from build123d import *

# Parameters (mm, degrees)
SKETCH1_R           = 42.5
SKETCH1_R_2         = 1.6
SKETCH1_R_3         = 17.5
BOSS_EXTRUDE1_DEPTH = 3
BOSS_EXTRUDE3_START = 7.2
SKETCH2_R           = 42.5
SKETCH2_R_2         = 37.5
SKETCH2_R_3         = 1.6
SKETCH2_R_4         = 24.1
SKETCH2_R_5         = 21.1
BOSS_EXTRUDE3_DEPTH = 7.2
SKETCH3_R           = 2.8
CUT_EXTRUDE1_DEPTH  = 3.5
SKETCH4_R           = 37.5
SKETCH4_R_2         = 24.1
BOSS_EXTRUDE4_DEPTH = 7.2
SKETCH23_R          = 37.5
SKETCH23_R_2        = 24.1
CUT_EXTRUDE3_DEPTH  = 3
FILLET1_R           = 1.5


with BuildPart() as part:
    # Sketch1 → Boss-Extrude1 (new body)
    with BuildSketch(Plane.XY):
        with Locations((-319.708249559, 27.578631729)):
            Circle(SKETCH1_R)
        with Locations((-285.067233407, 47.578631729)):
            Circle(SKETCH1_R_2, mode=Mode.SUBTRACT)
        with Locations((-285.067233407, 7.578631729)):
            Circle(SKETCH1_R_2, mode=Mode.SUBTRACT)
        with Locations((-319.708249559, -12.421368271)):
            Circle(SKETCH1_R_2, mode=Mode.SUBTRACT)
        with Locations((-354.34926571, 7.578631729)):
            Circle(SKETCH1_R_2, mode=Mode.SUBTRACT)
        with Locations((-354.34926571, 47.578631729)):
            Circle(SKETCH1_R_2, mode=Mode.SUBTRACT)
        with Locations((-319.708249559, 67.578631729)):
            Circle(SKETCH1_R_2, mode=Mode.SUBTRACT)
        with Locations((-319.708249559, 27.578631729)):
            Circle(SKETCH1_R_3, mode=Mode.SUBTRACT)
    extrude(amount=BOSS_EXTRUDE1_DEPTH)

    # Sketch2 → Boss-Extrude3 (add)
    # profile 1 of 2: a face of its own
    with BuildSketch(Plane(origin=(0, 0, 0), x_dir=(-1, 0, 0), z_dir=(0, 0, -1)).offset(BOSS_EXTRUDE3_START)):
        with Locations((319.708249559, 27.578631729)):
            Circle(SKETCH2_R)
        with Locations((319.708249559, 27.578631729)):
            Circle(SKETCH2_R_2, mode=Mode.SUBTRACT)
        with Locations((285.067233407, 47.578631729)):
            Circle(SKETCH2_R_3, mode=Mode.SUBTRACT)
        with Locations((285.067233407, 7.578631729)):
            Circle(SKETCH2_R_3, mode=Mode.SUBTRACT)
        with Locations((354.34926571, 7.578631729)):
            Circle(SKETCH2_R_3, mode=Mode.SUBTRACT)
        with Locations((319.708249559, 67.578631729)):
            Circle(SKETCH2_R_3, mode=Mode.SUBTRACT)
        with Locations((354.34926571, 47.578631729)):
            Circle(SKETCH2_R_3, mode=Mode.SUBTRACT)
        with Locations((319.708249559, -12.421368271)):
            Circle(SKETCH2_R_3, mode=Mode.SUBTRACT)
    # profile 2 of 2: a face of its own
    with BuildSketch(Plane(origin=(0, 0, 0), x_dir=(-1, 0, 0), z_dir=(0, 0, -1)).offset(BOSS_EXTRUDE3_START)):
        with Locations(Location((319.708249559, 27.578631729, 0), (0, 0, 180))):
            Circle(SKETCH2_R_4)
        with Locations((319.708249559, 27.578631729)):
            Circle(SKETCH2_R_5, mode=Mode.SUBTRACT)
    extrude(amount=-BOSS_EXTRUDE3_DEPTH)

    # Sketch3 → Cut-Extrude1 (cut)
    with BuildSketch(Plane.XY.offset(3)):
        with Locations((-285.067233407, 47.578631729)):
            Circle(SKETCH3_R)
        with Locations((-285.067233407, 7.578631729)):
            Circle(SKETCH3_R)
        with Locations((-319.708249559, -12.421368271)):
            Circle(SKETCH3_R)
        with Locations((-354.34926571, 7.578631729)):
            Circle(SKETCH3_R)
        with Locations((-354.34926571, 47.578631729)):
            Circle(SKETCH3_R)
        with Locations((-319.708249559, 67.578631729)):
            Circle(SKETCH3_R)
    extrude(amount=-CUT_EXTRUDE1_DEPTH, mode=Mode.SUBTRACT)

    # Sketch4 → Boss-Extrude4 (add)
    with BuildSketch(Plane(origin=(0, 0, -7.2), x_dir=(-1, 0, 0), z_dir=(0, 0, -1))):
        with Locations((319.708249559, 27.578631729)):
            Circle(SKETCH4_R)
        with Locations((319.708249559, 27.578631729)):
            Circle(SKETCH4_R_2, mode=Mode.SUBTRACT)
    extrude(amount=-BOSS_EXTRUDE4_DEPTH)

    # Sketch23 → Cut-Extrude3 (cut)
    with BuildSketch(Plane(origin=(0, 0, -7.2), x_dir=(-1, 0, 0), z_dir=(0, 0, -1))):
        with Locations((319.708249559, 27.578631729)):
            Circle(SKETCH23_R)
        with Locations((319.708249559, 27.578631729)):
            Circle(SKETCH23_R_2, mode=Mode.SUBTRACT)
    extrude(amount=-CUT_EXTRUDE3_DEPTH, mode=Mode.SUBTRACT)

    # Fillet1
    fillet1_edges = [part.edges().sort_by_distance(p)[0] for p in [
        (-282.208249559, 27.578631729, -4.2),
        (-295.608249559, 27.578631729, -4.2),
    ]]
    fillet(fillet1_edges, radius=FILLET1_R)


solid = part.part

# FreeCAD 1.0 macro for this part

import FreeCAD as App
import Part
import Sketcher

V = App.Vector
Q = App.Units.Quantity


def edges_at(feature, points):
    """Names of the edges that pass closest to the given points."""
    edges = feature.Shape.Edges
    near = lambda p: min(range(len(edges)), key=lambda i: edges[i].distToShape(Part.Vertex(*p))[0])
    return sorted({f"Edge{near(p) + 1}" for p in points})

doc = App.newDocument("Part")
body = doc.addObject("PartDesign::Body", "Body")

# Sketch on XY plane
sketch1 = body.newObject("Sketcher::SketchObject", "Sketch")
sketch1.AttachmentSupport = (doc.getObject("XY_Plane"), [""])
sketch1.MapMode = "FlatFace"
sketch1.addGeometry(Part.Circle(V(-319.70825, 27.578632, 0), V(0, 0, 1), 42.5), False)
sketch1.addGeometry(Part.Circle(V(-319.70825, -12.421368, 0), V(0, 0, 1), 1.6), False)
sketch1.addGeometry(Part.Circle(V(-354.349266, 7.578632, 0), V(0, 0, 1), 1.6), False)
sketch1.addGeometry(Part.Circle(V(-285.067233, 7.578632, 0), V(0, 0, 1), 1.6), False)
sketch1.addGeometry(Part.Circle(V(-354.349266, 47.578632, 0), V(0, 0, 1), 1.6), False)
sketch1.addGeometry(Part.Circle(V(-319.70825, 27.578632, 0), V(0, 0, 1), 17.5), False)
sketch1.addGeometry(Part.Circle(V(-319.70825, 67.578632, 0), V(0, 0, 1), 1.6), False)
sketch1.addGeometry(Part.Circle(V(-285.067233, 47.578632, 0), V(0, 0, 1), 1.6), False)
sketch1.addConstraint(Sketcher.Constraint("Coincident", 5, 3, 0, 3))
sketch1.addConstraint(Sketcher.Constraint("Equal", 1, 2))
sketch1.addConstraint(Sketcher.Constraint("Equal", 2, 3))
sketch1.addConstraint(Sketcher.Constraint("Equal", 3, 4))
sketch1.addConstraint(Sketcher.Constraint("Equal", 4, 6))
sketch1.addConstraint(Sketcher.Constraint("Equal", 6, 7))
sketch1.addConstraint(Sketcher.Constraint("Horizontal", 2, 3, 3, 3))
sketch1.addConstraint(Sketcher.Constraint("Horizontal", 4, 3, 7, 3))
sketch1.addConstraint(Sketcher.Constraint("Vertical", 0, 3, 1, 3))
sketch1.addConstraint(Sketcher.Constraint("Vertical", 2, 3, 4, 3))
sketch1.addConstraint(Sketcher.Constraint("Vertical", 5, 3, 6, 3))
sketch1.addConstraint(Sketcher.Constraint("Vertical", 3, 3, 7, 3))
sketch1.addConstraint(Sketcher.Constraint("Diameter", 0, Q("85 mm")))
sketch1.addConstraint(Sketcher.Constraint("Diameter", 5, Q("35 mm")))
sketch1.addConstraint(Sketcher.Constraint("Diameter", 1, Q("3.2 mm")))
sketch1.addConstraint(Sketcher.Constraint("DistanceY", 1, 3, 0, 3, Q("40 mm")))
sketch1.addConstraint(Sketcher.Constraint("DistanceY", 2, 3, 0, 3, Q("20 mm")))
sketch1.addConstraint(Sketcher.Constraint("DistanceY", 0, 3, 4, 3, Q("20 mm")))
sketch1.addConstraint(Sketcher.Constraint("DistanceY", 4, 3, 6, 3, Q("20 mm")))
sketch1.addConstraint(Sketcher.Constraint("DistanceX", 0, 3, -1, 1, Q("319.70825 mm")))
sketch1.addConstraint(Sketcher.Constraint("DistanceY", -1, 1, 0, 3, Q("27.578632 mm")))
sketch1.addConstraint(Sketcher.Constraint("DistanceX", 2, 3, -1, 1, Q("354.349266 mm")))
sketch1.addConstraint(Sketcher.Constraint("DistanceX", 3, 3, -1, 1, Q("285.067233 mm")))
pad1 = body.newObject("PartDesign::Pad", "Pad")
pad1.Profile = sketch1
pad1.Length = 3

# Sketch on XY plane
sketch2 = body.newObject("Sketcher::SketchObject", "Sketch001")
sketch2.AttachmentSupport = (doc.getObject("XY_Plane"), [""])
sketch2.MapMode = "FlatFace"
sketch2.AttachmentOffset = App.Placement(V(0, 0, -7.2), App.Rotation())
sketch2.addGeometry(Part.Circle(V(-319.70825, 27.578632, 0), V(0, 0, 1), 42.5), False)
sketch2.addGeometry(Part.Circle(V(-285.067233, 7.578632, 0), V(0, 0, 1), 1.6), False)
sketch2.addGeometry(Part.Circle(V(-319.70825, -12.421368, 0), V(0, 0, 1), 1.6), False)
sketch2.addGeometry(Part.Circle(V(-354.349266, 7.578632, 0), V(0, 0, 1), 1.6), False)
sketch2.addGeometry(Part.Circle(V(-285.067233, 47.578632, 0), V(0, 0, 1), 1.6), False)
sketch2.addGeometry(Part.Circle(V(-319.70825, 27.578632, 0), V(0, 0, 1), 37.5), False)
sketch2.addGeometry(Part.Circle(V(-354.349266, 47.578632, 0), V(0, 0, 1), 1.6), False)
sketch2.addGeometry(Part.Circle(V(-319.70825, 67.578632, 0), V(0, 0, 1), 1.6), False)
sketch2.addGeometry(Part.Circle(V(-319.70825, 27.578632, 0), V(0, 0, 1), 24.1), False)
sketch2.addGeometry(Part.Circle(V(-319.70825, 27.578632, 0), V(0, 0, 1), 21.1), False)
sketch2.addConstraint(Sketcher.Constraint("Coincident", 5, 3, 0, 3))
sketch2.addConstraint(Sketcher.Constraint("Coincident", 8, 3, 0, 3))
sketch2.addConstraint(Sketcher.Constraint("Coincident", 9, 3, 0, 3))
sketch2.addConstraint(Sketcher.Constraint("Equal", 1, 2))
sketch2.addConstraint(Sketcher.Constraint("Equal", 2, 3))
sketch2.addConstraint(Sketcher.Constraint("Equal", 3, 4))
sketch2.addConstraint(Sketcher.Constraint("Equal", 4, 6))
sketch2.addConstraint(Sketcher.Constraint("Equal", 6, 7))
sketch2.addConstraint(Sketcher.Constraint("Horizontal", 1, 3, 3, 3))
sketch2.addConstraint(Sketcher.Constraint("Horizontal", 4, 3, 6, 3))
sketch2.addConstraint(Sketcher.Constraint("Vertical", 0, 3, 2, 3))
sketch2.addConstraint(Sketcher.Constraint("Vertical", 1, 3, 4, 3))
sketch2.addConstraint(Sketcher.Constraint("Vertical", 3, 3, 6, 3))
sketch2.addConstraint(Sketcher.Constraint("Vertical", 5, 3, 7, 3))
sketch2.addConstraint(Sketcher.Constraint("Diameter", 0, Q("85 mm")))
sketch2.addConstraint(Sketcher.Constraint("Diameter", 5, Q("75 mm")))
sketch2.addConstraint(Sketcher.Constraint("Diameter", 1, Q("3.2 mm")))
sketch2.addConstraint(Sketcher.Constraint("Diameter", 8, Q("48.2 mm")))
sketch2.addConstraint(Sketcher.Constraint("Diameter", 9, Q("42.2 mm")))
sketch2.addConstraint(Sketcher.Constraint("DistanceY", 1, 3, 0, 3, Q("20 mm")))
sketch2.addConstraint(Sketcher.Constraint("DistanceY", 2, 3, 0, 3, Q("40 mm")))
sketch2.addConstraint(Sketcher.Constraint("DistanceY", 1, 3, 4, 3, Q("40 mm")))
sketch2.addConstraint(Sketcher.Constraint("DistanceY", 6, 3, 7, 3, Q("20 mm")))
sketch2.addConstraint(Sketcher.Constraint("DistanceX", 0, 3, -1, 1, Q("319.70825 mm")))
sketch2.addConstraint(Sketcher.Constraint("DistanceY", -1, 1, 0, 3, Q("27.578632 mm")))
sketch2.addConstraint(Sketcher.Constraint("DistanceX", 1, 3, -1, 1, Q("285.067233 mm")))
sketch2.addConstraint(Sketcher.Constraint("DistanceX", 3, 3, -1, 1, Q("354.349266 mm")))
pad2 = body.newObject("PartDesign::Pad", "Pad001")
pad2.Profile = sketch2
pad2.Length = 7.2

# Sketch on XY plane
sketch3 = body.newObject("Sketcher::SketchObject", "Sketch002")
sketch3.AttachmentSupport = (doc.getObject("XY_Plane"), [""])
sketch3.MapMode = "FlatFace"
sketch3.AttachmentOffset = App.Placement(V(0, 0, 3), App.Rotation())
sketch3.addGeometry(Part.Circle(V(-285.067233, 47.578632, 0), V(0, 0, 1), 2.8), False)
sketch3.addGeometry(Part.Circle(V(-285.067233, 7.578632, 0), V(0, 0, 1), 2.8), False)
sketch3.addGeometry(Part.Circle(V(-319.70825, -12.421368, 0), V(0, 0, 1), 2.8), False)
sketch3.addGeometry(Part.Circle(V(-354.349266, 7.578632, 0), V(0, 0, 1), 2.8), False)
sketch3.addGeometry(Part.Circle(V(-354.349266, 47.578632, 0), V(0, 0, 1), 2.8), False)
sketch3.addGeometry(Part.Circle(V(-319.70825, 67.578632, 0), V(0, 0, 1), 2.8), False)
sketch3.addConstraint(Sketcher.Constraint("Equal", 0, 1))
sketch3.addConstraint(Sketcher.Constraint("Equal", 1, 2))
sketch3.addConstraint(Sketcher.Constraint("Equal", 2, 3))
sketch3.addConstraint(Sketcher.Constraint("Equal", 3, 4))
sketch3.addConstraint(Sketcher.Constraint("Equal", 4, 5))
sketch3.addConstraint(Sketcher.Constraint("Horizontal", 1, 3, 3, 3))
sketch3.addConstraint(Sketcher.Constraint("Horizontal", 0, 3, 4, 3))
sketch3.addConstraint(Sketcher.Constraint("Vertical", 0, 3, 1, 3))
sketch3.addConstraint(Sketcher.Constraint("Vertical", 3, 3, 4, 3))
sketch3.addConstraint(Sketcher.Constraint("Vertical", 2, 3, 5, 3))
sketch3.addConstraint(Sketcher.Constraint("Diameter", 0, Q("5.6 mm")))
sketch3.addConstraint(Sketcher.Constraint("DistanceY", 1, 3, 0, 3, Q("40 mm")))
sketch3.addConstraint(Sketcher.Constraint("DistanceY", 2, 3, 1, 3, Q("20 mm")))
sketch3.addConstraint(Sketcher.Constraint("DistanceY", 4, 3, 5, 3, Q("20 mm")))
sketch3.addConstraint(Sketcher.Constraint("DistanceY", -1, 1, 0, 3, Q("47.578632 mm")))
sketch3.addConstraint(Sketcher.Constraint("DistanceX", 2, 3, -1, 1, Q("319.70825 mm")))
sketch3.addConstraint(Sketcher.Constraint("DistanceX", 0, 3, -1, 1, Q("285.067233 mm")))
sketch3.addConstraint(Sketcher.Constraint("DistanceX", 3, 3, -1, 1, Q("354.349266 mm")))
pocket1 = body.newObject("PartDesign::Pocket", "Pocket")
pocket1.Profile = sketch3
pocket1.Length = 3.5

# Sketch on XY plane
sketch4 = body.newObject("Sketcher::SketchObject", "Sketch003")
sketch4.AttachmentSupport = (doc.getObject("XY_Plane"), [""])
sketch4.MapMode = "FlatFace"
sketch4.AttachmentOffset = App.Placement(V(0, 0, -7.2), App.Rotation())
sketch4.addGeometry(Part.Circle(V(-319.70825, 27.578632, 0), V(0, 0, 1), 37.5), False)
sketch4.addGeometry(Part.Circle(V(-319.70825, 27.578632, 0), V(0, 0, 1), 24.1), False)
sketch4.addConstraint(Sketcher.Constraint("Coincident", 1, 3, 0, 3))
sketch4.addConstraint(Sketcher.Constraint("Diameter", 0, Q("75 mm")))
sketch4.addConstraint(Sketcher.Constraint("Diameter", 1, Q("48.2 mm")))
sketch4.addConstraint(Sketcher.Constraint("DistanceX", 0, 3, -1, 1, Q("319.70825 mm")))
sketch4.addConstraint(Sketcher.Constraint("DistanceY", -1, 1, 0, 3, Q("27.578632 mm")))
pad3 = body.newObject("PartDesign::Pad", "Pad002")
pad3.Profile = sketch4
pad3.Length = 7.2

# Sketch on XY plane
sketch5 = body.newObject("Sketcher::SketchObject", "Sketch004")
sketch5.AttachmentSupport = (doc.getObject("XY_Plane"), [""])
sketch5.MapMode = "FlatFace"
sketch5.AttachmentOffset = App.Placement(V(0, 0, -7.2), App.Rotation())
sketch5.addGeometry(Part.Circle(V(-319.70825, 27.578632, 0), V(0, 0, 1), 37.5), False)
sketch5.addGeometry(Part.Circle(V(-319.70825, 27.578632, 0), V(0, 0, 1), 24.1), False)
sketch5.addConstraint(Sketcher.Constraint("Coincident", 1, 3, 0, 3))
sketch5.addConstraint(Sketcher.Constraint("Diameter", 0, Q("75 mm")))
sketch5.addConstraint(Sketcher.Constraint("Diameter", 1, Q("48.2 mm")))
sketch5.addConstraint(Sketcher.Constraint("DistanceX", 0, 3, -1, 1, Q("319.70825 mm")))
sketch5.addConstraint(Sketcher.Constraint("DistanceY", -1, 1, 0, 3, Q("27.578632 mm")))
pocket2 = body.newObject("PartDesign::Pocket", "Pocket001")
pocket2.Profile = sketch5
pocket2.Length = 3
pocket2.Reversed = True
doc.recompute()

fillet = body.newObject("PartDesign::Fillet", "Fillet")
fillet.Base = (pocket2, edges_at(pocket2, [(-282.208, 27.579, -4.2), (-295.608, 27.579, -4.2)]))
fillet.Radius = 1.5

doc.recompute()
